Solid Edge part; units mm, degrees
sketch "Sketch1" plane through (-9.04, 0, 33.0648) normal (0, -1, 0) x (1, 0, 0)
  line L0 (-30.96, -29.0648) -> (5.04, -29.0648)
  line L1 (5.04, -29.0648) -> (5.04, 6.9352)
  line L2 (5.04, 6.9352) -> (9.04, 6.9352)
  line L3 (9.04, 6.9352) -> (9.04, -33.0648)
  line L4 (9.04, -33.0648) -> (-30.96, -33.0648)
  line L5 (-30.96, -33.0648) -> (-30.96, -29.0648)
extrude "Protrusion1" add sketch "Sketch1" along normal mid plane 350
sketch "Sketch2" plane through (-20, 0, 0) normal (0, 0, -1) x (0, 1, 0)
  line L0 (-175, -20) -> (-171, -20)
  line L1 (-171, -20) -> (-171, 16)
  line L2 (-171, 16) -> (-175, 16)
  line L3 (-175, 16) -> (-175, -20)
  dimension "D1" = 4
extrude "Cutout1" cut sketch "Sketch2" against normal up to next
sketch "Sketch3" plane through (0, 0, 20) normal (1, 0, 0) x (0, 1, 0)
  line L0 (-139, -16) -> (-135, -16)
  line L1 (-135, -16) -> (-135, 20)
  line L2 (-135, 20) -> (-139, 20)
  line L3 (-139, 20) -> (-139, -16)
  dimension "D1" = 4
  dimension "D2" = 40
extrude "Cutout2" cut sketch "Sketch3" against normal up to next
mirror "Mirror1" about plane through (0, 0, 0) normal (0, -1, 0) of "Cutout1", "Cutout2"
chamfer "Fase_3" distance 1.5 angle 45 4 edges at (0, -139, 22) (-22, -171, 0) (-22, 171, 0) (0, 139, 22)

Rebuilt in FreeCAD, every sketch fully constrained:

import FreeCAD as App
import Part
import Sketcher
from FreeCAD import Vector
Q = App.Units.Quantity


def edges_at(feature, points):
    """Names of the edges that pass closest to the given points."""
    edges = feature.Shape.Edges
    near = lambda p: min(range(len(edges)), key=lambda i: edges[i].distToShape(Part.Vertex(*p))[0])
    return sorted({f"Edge{near(p) + 1}" for p in points})

doc = App.newDocument("Part")
body = doc.addObject("PartDesign::Body", "Body")

sketch1 = body.newObject("Sketcher::SketchObject", "Sketch")
sketch1.AttachmentSupport = (doc.getObject("XZ_Plane"), [""])
sketch1.MapMode = "FlatFace"
sketch1.addGeometry([
    Part.LineSegment(Vector(-4, 4, 0), Vector(-40, 4, 0)),
    Part.LineSegment(Vector(-40, 4, 0), Vector(-40, 0, 0)),
    Part.LineSegment(Vector(-40, 0, 0), Vector(0, 0, 0)),
    Part.LineSegment(Vector(0, 0, 0), Vector(0, 40, 0)),
    Part.LineSegment(Vector(0, 40, 0), Vector(-4, 40, 0)),
    Part.LineSegment(Vector(-4, 40, 0), Vector(-4, 4, 0)),
], False)
sketch1.addConstraint([
    Sketcher.Constraint("Coincident", 0, 2, 1, 1),
    Sketcher.Constraint("Coincident", 1, 2, 2, 1),
    Sketcher.Constraint("Coincident", 2, 2, 3, 1),
    Sketcher.Constraint("Coincident", 3, 2, 4, 1),
    Sketcher.Constraint("Coincident", 4, 2, 5, 1),
    Sketcher.Constraint("Coincident", 5, 2, 0, 1),
    Sketcher.Constraint("Horizontal", 0),
    Sketcher.Constraint("Vertical", 1),
    Sketcher.Constraint("Horizontal", 2),
    Sketcher.Constraint("Vertical", 3),
    Sketcher.Constraint("Horizontal", 4),
    Sketcher.Constraint("Vertical", 5),
    Sketcher.Constraint("Coincident", 2, 2, -1, 1),
    Sketcher.Constraint("Equal", 4, 1),
    Sketcher.Constraint("Equal", 2, 3),
    Sketcher.Constraint("DistanceX", 0, 2, 0, 1, Q("36 mm")),
    Sketcher.Constraint("DistanceX", 2, 1, 2, 2, Q("40 mm")),
])
pad1 = body.newObject("PartDesign::Pad", "Pad")
pad1.Profile = sketch1
pad1.Length = 350
pad1.Midplane = True

sketch2 = body.newObject("Sketcher::SketchObject", "Sketch001")
sketch2.AttachmentSupport = (doc.getObject("XY_Plane"), [""])
sketch2.MapMode = "FlatFace"
sketch2.addGeometry([
    Part.LineSegment(Vector(-4, -175, 0), Vector(-40, -175, 0)),
    Part.LineSegment(Vector(-40, -175, 0), Vector(-40, -171, 0)),
    Part.LineSegment(Vector(-40, -171, 0), Vector(-4, -171, 0)),
    Part.LineSegment(Vector(-4, -171, 0), Vector(-4, -175, 0)),
], False)
sketch2.addConstraint([
    Sketcher.Constraint("Coincident", 0, 2, 1, 1),
    Sketcher.Constraint("Coincident", 1, 2, 2, 1),
    Sketcher.Constraint("Coincident", 2, 2, 3, 1),
    Sketcher.Constraint("Coincident", 3, 2, 0, 1),
    Sketcher.Constraint("Horizontal", 0),
    Sketcher.Constraint("Vertical", 1),
    Sketcher.Constraint("Horizontal", 2),
    Sketcher.Constraint("Vertical", 3),
    Sketcher.Constraint("DistanceY", 0, 2, -1, 1, Q("175 mm")),
    Sketcher.Constraint("DistanceX", 0, 2, 0, 1, Q("36 mm")),
    Sketcher.Constraint("DistanceY", 1, 1, 1, 2, Q("4 mm")),
    Sketcher.Constraint("DistanceX", 0, 2, -1, 1, Q("40 mm")),
])
pocket1 = body.newObject("PartDesign::Pocket", "Pocket")
pocket1.Profile = sketch2
pocket1.Type = "UpToFirst"
pocket1.Reversed = True

sketch3 = body.newObject("Sketcher::SketchObject", "Sketch002")
sketch3.AttachmentSupport = (doc.getObject("YZ_Plane"), [""])
sketch3.MapMode = "FlatFace"
sketch3.addGeometry([
    Part.LineSegment(Vector(-139, 40, 0), Vector(-139, 4, 0)),
    Part.LineSegment(Vector(-139, 4, 0), Vector(-135, 4, 0)),
    Part.LineSegment(Vector(-135, 4, 0), Vector(-135, 40, 0)),
    Part.LineSegment(Vector(-135, 40, 0), Vector(-139, 40, 0)),
], False)
sketch3.addConstraint([
    Sketcher.Constraint("Coincident", 0, 2, 1, 1),
    Sketcher.Constraint("Coincident", 1, 2, 2, 1),
    Sketcher.Constraint("Coincident", 2, 2, 3, 1),
    Sketcher.Constraint("Coincident", 3, 2, 0, 1),
    Sketcher.Constraint("Vertical", 0),
    Sketcher.Constraint("Horizontal", 1),
    Sketcher.Constraint("Vertical", 2),
    Sketcher.Constraint("Horizontal", 3),
    Sketcher.Constraint("DistanceX", 1, 2, -1, 1, Q("135 mm")),
    Sketcher.Constraint("DistanceX", 1, 1, 1, 2, Q("4 mm")),
    Sketcher.Constraint("DistanceY", 0, 2, 0, 1, Q("36 mm")),
    Sketcher.Constraint("DistanceY", -1, 1, 0, 2, Q("4 mm")),
])
pocket2 = body.newObject("PartDesign::Pocket", "Pocket001")
pocket2.Profile = sketch3
pocket2.Type = "UpToFirst"
doc.recompute()

mirrored = body.newObject("PartDesign::Mirrored", "Mirrored")
mirrored.Originals = [pocket1, pocket2]
mirrored.MirrorPlane = (doc.getObject("XZ_Plane"), [""])
body.Tip = mirrored
doc.recompute()

chamfer = body.newObject("PartDesign::Chamfer", "Chamfer")
chamfer.Base = (mirrored, edges_at(mirrored, [
    (0, -139, 22),
    (-22, -171, 0),
    (-22, 171, 0),
    (0, 139, 22),
]))
chamfer.Size = 1.5

doc.recompute()
